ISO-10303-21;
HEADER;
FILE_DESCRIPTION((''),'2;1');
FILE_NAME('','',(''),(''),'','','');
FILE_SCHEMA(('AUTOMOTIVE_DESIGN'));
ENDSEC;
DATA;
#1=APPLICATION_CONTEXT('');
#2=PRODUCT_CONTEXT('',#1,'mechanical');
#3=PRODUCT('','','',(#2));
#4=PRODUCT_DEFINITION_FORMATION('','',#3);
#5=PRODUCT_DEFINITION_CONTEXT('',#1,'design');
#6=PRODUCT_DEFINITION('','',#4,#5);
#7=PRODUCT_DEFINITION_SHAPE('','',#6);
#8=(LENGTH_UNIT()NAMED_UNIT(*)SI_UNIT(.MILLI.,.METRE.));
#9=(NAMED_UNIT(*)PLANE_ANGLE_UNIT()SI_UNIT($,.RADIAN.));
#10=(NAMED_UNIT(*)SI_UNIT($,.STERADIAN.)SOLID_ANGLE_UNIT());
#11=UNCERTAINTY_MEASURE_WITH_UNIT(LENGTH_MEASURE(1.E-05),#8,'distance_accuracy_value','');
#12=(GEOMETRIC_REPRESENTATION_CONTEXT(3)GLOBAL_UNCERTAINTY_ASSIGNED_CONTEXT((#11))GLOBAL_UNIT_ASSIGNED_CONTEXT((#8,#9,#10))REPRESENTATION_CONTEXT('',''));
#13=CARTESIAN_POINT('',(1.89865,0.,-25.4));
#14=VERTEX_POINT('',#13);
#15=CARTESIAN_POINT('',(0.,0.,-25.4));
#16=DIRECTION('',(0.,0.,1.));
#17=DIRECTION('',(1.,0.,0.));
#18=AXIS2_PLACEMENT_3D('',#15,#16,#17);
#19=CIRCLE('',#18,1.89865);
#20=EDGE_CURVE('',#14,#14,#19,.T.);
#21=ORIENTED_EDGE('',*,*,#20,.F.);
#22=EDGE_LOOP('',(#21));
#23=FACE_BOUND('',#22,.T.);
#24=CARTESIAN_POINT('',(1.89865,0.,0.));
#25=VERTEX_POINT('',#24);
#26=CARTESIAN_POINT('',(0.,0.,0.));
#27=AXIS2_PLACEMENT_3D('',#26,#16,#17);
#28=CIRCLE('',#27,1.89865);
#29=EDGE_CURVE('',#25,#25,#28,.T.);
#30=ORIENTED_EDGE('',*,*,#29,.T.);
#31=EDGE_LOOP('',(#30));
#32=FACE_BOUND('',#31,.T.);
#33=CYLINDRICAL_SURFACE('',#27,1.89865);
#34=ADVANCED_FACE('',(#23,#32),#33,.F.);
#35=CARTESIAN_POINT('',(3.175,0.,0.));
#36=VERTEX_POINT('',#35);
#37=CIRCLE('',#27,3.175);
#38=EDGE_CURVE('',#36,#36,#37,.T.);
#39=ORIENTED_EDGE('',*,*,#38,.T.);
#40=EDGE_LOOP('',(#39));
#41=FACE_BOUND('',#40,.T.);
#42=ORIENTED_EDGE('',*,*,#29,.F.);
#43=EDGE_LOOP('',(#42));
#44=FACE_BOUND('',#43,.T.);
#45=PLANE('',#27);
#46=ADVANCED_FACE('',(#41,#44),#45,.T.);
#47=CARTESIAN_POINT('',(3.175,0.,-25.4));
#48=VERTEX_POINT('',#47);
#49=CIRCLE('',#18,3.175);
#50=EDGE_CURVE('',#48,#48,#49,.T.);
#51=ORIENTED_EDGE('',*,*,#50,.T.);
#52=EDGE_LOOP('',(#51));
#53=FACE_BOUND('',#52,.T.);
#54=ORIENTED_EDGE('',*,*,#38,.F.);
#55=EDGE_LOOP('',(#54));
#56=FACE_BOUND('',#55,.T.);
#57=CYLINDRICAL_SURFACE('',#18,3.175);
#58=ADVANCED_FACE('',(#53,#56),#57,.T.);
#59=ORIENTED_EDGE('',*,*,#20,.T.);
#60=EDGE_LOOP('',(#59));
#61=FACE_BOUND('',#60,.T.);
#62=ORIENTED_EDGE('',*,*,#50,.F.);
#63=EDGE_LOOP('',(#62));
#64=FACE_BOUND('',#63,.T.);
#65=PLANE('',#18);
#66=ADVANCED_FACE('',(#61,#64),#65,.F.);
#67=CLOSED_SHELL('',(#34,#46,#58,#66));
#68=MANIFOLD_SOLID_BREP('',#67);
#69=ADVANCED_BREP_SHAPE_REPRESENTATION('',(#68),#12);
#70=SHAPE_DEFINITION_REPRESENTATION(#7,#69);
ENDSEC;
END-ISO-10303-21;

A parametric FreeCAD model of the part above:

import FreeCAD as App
import Part
import Sketcher
from FreeCAD import Vector
Q = App.Units.Quantity

doc = App.newDocument("Part")
body = doc.addObject("PartDesign::Body", "Body")

# Sketch on XY plane
sketch1 = body.newObject("Sketcher::SketchObject", "Sketch")
sketch1.AttachmentSupport = (doc.getObject("XY_Plane"), [""])
sketch1.MapMode = "FlatFace"
sketch1.addGeometry(Part.Circle(Vector(0, 0, 0), Vector(0, 0, 1), 3.2), False)
sketch1.addConstraint(Sketcher.Constraint("Coincident", 0, 3, -1, 1))
sketch1.addConstraint(Sketcher.Constraint("Diameter", 0, Q("0.25 in")))
pad1 = body.newObject("PartDesign::Pad", "Pad")
pad1.Profile = sketch1
pad1.Length = Q("1 in")
pad1.Reversed = True

# Sketch on XY plane
sketch2 = body.newObject("Sketcher::SketchObject", "Sketch001")
sketch2.AttachmentSupport = (doc.getObject("XY_Plane"), [""])
sketch2.MapMode = "FlatFace"
sketch2.addGeometry(Part.Circle(Vector(0, 0, 0), Vector(0, 0, 1), 1.9), False)
sketch2.addConstraint(Sketcher.Constraint("Coincident", 0, 3, -1, 1))
sketch2.addConstraint(Sketcher.Constraint("Diameter", 0, Q("0.1495 in")))
doc.recompute()
hole = body.newObject("PartDesign::Hole", "Hole")
hole.Profile = sketch2
hole.ThreadType = "None"
hole.Diameter = Q("0.1495 in")
hole.DepthType = "ThroughAll"

doc.recompute()
